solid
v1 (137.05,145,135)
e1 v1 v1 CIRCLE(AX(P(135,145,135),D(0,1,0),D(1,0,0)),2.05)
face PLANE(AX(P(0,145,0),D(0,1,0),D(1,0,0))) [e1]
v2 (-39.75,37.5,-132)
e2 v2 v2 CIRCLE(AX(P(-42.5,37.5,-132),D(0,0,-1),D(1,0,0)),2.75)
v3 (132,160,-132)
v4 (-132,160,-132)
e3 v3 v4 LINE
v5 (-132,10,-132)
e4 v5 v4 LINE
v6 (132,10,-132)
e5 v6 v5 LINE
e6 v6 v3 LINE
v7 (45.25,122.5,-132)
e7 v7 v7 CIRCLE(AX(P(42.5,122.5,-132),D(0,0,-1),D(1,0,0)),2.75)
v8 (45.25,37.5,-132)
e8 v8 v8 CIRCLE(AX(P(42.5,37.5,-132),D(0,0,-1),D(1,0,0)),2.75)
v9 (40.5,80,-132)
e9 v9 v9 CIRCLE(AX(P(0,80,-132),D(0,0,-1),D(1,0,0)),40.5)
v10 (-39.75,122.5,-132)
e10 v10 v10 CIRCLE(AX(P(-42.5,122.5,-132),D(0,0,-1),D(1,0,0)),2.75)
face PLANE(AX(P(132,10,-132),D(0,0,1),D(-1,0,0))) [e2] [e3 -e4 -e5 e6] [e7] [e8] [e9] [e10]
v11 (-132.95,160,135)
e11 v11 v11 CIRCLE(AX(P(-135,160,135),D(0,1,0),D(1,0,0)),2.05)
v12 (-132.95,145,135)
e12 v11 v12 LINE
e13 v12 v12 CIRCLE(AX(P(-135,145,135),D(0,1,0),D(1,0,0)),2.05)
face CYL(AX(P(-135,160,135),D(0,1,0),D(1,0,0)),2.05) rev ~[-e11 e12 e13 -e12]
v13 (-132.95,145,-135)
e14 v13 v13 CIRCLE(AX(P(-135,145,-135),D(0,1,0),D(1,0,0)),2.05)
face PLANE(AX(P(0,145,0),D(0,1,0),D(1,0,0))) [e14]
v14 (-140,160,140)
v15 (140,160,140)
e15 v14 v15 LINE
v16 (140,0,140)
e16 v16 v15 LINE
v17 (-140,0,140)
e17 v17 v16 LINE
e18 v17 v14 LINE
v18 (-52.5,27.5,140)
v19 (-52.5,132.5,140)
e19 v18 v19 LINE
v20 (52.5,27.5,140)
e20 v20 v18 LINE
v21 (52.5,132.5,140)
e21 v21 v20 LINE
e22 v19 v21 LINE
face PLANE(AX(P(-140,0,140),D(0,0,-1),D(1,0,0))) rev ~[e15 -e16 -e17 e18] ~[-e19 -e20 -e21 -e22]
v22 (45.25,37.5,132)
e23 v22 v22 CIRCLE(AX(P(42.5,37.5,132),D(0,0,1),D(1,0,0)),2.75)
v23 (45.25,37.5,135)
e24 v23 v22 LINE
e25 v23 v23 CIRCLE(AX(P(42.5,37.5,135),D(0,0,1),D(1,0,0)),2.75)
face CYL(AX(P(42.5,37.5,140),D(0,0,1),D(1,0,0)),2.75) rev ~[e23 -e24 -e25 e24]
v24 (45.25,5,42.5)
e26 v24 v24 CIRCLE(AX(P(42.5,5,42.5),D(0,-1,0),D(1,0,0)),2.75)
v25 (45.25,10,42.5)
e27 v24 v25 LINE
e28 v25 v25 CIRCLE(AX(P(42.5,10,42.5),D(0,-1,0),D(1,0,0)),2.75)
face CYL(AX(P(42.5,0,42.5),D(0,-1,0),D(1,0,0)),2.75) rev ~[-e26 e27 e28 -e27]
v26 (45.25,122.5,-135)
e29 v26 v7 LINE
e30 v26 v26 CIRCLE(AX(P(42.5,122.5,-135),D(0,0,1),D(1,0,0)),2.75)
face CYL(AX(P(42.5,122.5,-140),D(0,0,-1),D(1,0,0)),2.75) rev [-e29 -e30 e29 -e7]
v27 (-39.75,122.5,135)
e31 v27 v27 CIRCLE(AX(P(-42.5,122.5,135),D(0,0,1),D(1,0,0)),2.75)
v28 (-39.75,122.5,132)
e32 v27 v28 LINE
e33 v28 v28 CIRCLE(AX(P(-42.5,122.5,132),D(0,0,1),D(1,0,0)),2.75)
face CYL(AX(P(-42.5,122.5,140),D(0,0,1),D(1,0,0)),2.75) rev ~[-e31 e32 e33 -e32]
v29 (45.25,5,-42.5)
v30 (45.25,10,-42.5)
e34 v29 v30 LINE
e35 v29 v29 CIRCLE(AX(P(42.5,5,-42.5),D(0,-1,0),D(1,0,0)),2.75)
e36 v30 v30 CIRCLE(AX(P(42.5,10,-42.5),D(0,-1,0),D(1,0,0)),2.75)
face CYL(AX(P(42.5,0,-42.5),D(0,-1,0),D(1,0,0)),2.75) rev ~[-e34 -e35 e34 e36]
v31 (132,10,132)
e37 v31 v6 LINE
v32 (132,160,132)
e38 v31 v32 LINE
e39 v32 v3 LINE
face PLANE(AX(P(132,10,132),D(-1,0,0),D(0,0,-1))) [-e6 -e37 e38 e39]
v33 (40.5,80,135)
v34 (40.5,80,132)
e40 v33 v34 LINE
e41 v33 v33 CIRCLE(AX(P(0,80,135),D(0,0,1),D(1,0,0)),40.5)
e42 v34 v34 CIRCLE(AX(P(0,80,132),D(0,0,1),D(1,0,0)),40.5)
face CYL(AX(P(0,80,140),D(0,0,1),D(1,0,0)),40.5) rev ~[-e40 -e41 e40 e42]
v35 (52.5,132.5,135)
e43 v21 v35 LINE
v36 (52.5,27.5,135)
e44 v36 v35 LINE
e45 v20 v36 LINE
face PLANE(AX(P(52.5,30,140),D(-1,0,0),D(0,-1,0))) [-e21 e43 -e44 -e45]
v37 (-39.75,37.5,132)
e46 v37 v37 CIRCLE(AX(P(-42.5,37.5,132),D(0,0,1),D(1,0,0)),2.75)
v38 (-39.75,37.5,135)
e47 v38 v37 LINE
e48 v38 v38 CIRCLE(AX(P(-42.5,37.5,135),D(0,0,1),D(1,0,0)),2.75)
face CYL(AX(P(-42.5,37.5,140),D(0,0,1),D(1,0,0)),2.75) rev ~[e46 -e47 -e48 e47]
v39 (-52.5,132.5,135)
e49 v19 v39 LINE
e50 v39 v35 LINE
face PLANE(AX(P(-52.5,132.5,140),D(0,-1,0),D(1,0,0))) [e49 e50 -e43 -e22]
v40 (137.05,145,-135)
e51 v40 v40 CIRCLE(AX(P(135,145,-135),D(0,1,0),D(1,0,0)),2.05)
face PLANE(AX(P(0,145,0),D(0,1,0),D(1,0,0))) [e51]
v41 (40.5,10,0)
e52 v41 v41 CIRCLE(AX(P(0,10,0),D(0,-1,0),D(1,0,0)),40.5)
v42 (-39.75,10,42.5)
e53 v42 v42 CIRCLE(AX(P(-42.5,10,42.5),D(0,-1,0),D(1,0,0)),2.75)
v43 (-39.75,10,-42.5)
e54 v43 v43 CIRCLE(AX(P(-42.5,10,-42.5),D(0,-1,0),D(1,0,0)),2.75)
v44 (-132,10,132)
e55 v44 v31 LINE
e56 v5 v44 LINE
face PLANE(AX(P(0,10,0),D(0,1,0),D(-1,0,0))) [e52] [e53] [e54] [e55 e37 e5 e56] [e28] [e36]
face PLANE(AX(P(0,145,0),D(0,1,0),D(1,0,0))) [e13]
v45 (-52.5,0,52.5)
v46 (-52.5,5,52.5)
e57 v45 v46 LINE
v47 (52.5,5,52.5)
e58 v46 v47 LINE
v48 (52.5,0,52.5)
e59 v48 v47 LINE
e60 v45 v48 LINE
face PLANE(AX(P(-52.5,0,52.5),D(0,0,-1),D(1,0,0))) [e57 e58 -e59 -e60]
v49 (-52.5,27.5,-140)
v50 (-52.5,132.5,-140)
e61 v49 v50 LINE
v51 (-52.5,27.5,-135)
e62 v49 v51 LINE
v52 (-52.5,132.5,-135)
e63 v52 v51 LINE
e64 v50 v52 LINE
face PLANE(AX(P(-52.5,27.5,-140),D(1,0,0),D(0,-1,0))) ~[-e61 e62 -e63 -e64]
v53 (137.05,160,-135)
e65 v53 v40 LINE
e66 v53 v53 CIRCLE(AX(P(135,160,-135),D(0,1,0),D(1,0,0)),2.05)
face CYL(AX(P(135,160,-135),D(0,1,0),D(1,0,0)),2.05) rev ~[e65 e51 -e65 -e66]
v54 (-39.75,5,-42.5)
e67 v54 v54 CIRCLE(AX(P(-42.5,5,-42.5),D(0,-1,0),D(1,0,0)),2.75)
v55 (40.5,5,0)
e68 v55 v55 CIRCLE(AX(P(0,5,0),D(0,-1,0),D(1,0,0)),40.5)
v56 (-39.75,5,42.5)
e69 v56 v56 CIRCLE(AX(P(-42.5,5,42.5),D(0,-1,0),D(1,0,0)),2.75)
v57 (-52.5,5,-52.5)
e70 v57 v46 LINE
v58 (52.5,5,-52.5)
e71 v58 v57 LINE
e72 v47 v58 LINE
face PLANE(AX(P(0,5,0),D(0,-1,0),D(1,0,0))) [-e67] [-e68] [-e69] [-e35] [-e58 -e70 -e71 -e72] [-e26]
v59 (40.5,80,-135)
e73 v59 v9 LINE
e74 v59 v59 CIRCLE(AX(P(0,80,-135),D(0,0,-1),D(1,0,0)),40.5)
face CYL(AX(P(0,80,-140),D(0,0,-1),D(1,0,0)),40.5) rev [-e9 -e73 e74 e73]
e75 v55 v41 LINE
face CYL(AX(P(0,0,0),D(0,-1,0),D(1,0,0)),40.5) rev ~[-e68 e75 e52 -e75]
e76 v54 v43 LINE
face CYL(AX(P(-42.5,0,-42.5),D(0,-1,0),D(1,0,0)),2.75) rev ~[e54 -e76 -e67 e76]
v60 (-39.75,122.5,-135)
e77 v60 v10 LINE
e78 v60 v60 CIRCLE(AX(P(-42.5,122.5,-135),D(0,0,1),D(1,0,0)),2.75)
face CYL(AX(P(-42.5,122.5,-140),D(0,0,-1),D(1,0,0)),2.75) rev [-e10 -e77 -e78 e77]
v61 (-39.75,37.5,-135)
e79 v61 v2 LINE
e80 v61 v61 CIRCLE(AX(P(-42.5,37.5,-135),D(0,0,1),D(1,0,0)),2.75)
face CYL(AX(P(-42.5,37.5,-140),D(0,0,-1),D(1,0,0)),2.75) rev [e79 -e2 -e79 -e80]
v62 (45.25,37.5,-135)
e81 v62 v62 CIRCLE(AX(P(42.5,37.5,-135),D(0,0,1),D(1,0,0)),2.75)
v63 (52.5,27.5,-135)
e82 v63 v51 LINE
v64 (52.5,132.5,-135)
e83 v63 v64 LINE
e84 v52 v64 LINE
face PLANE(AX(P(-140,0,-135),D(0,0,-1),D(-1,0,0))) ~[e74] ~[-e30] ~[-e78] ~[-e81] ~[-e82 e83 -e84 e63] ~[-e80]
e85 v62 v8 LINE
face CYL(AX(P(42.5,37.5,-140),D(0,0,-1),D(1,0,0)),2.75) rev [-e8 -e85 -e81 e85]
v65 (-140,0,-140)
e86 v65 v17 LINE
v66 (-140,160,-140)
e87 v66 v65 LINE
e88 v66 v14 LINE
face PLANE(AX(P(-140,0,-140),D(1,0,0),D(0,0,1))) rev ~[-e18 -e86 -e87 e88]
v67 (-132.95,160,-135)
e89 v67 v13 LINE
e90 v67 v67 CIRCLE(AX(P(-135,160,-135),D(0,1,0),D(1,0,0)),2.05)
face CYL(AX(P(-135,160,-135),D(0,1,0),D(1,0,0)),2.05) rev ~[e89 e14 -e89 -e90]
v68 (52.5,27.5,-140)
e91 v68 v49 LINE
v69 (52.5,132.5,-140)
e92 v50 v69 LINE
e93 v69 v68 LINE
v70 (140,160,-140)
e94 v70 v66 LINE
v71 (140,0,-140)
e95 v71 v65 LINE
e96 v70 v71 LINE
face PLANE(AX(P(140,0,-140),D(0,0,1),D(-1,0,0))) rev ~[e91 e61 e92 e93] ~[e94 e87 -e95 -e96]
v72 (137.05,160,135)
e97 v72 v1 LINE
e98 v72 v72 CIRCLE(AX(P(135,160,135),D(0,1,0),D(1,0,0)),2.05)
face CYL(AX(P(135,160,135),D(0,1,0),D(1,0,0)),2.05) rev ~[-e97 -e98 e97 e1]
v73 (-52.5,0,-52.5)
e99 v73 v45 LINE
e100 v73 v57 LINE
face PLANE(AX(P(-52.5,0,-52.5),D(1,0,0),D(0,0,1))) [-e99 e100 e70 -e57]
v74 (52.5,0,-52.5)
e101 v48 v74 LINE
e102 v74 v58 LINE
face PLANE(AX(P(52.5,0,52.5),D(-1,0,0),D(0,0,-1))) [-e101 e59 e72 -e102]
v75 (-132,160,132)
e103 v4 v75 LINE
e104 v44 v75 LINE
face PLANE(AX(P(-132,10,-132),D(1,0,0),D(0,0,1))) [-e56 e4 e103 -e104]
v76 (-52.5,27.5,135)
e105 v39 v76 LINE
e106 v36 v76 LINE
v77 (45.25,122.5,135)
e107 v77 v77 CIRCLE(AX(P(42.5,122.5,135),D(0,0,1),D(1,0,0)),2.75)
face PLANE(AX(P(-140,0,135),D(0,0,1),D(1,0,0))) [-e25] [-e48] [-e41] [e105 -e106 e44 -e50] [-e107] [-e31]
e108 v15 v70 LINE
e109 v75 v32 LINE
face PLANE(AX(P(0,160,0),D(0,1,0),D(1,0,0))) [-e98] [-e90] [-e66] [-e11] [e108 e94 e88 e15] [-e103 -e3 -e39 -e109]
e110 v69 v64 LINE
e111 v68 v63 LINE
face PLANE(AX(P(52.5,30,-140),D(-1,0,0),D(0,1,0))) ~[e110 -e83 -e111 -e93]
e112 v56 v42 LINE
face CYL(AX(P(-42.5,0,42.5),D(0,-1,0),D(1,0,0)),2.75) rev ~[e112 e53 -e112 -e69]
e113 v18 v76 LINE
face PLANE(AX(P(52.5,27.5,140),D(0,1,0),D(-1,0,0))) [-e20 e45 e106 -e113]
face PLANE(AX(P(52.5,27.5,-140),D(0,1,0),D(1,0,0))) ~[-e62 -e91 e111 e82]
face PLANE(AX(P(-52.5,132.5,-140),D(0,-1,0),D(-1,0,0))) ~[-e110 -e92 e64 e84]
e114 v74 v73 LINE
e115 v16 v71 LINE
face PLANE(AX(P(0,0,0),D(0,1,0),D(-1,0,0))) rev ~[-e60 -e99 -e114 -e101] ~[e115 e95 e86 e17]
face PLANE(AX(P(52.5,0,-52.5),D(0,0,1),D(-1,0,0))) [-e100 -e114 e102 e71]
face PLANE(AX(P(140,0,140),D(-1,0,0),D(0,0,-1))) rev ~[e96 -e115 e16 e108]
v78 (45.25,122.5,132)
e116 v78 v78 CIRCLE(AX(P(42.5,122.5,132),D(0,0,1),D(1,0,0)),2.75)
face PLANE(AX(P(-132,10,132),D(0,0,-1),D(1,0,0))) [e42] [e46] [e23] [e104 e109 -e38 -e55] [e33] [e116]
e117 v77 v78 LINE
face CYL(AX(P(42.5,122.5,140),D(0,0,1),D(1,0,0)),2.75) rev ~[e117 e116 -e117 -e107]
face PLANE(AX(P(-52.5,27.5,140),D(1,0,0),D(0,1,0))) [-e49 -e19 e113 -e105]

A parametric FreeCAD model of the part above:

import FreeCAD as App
import Part
import Sketcher

V = App.Vector


def add_polygon(sketch, points):
    """Adds a closed chain of lines whose ends are joined by coincident constraints."""
    first, n = sketch.GeometryCount, len(points)
    for a, b in zip(points, points[1:] + points[:1]):
        sketch.addGeometry(Part.LineSegment(App.Vector(*a, 0), App.Vector(*b, 0)), False)
    for i in range(n):
        sketch.addConstraint(Sketcher.Constraint("Coincident", first + i, 2, first + (i + 1) % n, 1))

doc = App.newDocument("Part")
body = doc.addObject("PartDesign::Body", "Body")

# Sketch on XZ plane
sketch1 = doc.addObject("Sketcher::SketchObject", "Sketch")
body.addObject(sketch1)
sketch1.AttachmentSupport = (doc.XZ_Plane, [""])
sketch1.MapMode = "FlatFace"
add_polygon(sketch1, [(-140, -140), (-140, 140), (140, 140), (140, -140)])  # lines 0-3
sketch1.addConstraint(Sketcher.Constraint("Vertical", 0))
sketch1.addConstraint(Sketcher.Constraint("Horizontal", 1))
sketch1.addConstraint(Sketcher.Constraint("Vertical", 2))
sketch1.addConstraint(Sketcher.Constraint("Horizontal", 3))
sketch1.addConstraint(Sketcher.Constraint("Symmetric", 0, 2, 2, 2, -1, 1))
sketch1.addConstraint(Sketcher.Constraint("Equal", 3, 0))
sketch1.addConstraint(Sketcher.Constraint("DistanceX", 1, 1, 1, 2, 280.0))
pad1 = doc.addObject("PartDesign::Pad", "Pad")
body.addObject(pad1)
pad1.Profile = sketch1
pad1.Length = 10
pad1.Reversed = True

# Sketch on XZ plane
sketch2 = doc.addObject("Sketcher::SketchObject", "Sketch001")
body.addObject(sketch2)
sketch2.AttachmentSupport = (doc.XZ_Plane, [""])
sketch2.MapMode = "FlatFace"
sketch2.AttachmentOffset = App.Placement(V(0, 0, -10), App.Rotation())
add_polygon(sketch2, [(-140, -140), (-140, 140), (140, 140), (140, -140)])  # lines 0-3
add_polygon(sketch2, [(132, 132), (-132, 132), (-132, -132), (132, -132)])  # lines 4-7
sketch2.addConstraint(Sketcher.Constraint("Vertical", 0))
sketch2.addConstraint(Sketcher.Constraint("Horizontal", 1))
sketch2.addConstraint(Sketcher.Constraint("Vertical", 2))
sketch2.addConstraint(Sketcher.Constraint("Horizontal", 3))
sketch2.addConstraint(Sketcher.Constraint("Horizontal", 4))
sketch2.addConstraint(Sketcher.Constraint("Vertical", 5))
sketch2.addConstraint(Sketcher.Constraint("Horizontal", 6))
sketch2.addConstraint(Sketcher.Constraint("Vertical", 7))
sketch2.addConstraint(Sketcher.Constraint("Symmetric", 0, 2, 2, 2, -1, 1))
sketch2.addConstraint(Sketcher.Constraint("Symmetric", 4, 2, 6, 2, -1, 1))
sketch2.addConstraint(Sketcher.Constraint("Equal", 3, 0))
sketch2.addConstraint(Sketcher.Constraint("Equal", 6, 5))
sketch2.addConstraint(Sketcher.Constraint("DistanceX", 0, 2, 4, 2, 8.0))
sketch2.addConstraint(Sketcher.Constraint("DistanceX", 1, 1, 1, 2, 280.0))
pad2 = doc.addObject("PartDesign::Pad", "Pad001")
body.addObject(pad2)
pad2.Profile = sketch2
pad2.Length = 150
pad2.Reversed = True

# Sketch on XZ plane
sketch3 = doc.addObject("Sketcher::SketchObject", "Sketch002")
body.addObject(sketch3)
sketch3.AttachmentSupport = (doc.XZ_Plane, [""])
sketch3.MapMode = "FlatFace"
sketch3.AttachmentOffset = App.Placement(V(0, 0, -160), App.Rotation())
sketch3.addGeometry(Part.Circle(V(-135, -135, 0), V(0, 0, 1), 2.05), False)
sketch3.addGeometry(Part.Circle(V(135, -135, 0), V(0, 0, 1), 2.05), False)
sketch3.addGeometry(Part.Circle(V(135, 135, 0), V(0, 0, 1), 2.05), False)
sketch3.addGeometry(Part.Circle(V(-135, 135, 0), V(0, 0, 1), 2.05), False)
sketch3.addConstraint(Sketcher.Constraint("Equal", 0, 1))
sketch3.addConstraint(Sketcher.Constraint("Equal", 1, 2))
sketch3.addConstraint(Sketcher.Constraint("Equal", 2, 3))
sketch3.addConstraint(Sketcher.Constraint("Symmetric", 0, 3, 2, 3, -1, 1))
sketch3.addConstraint(Sketcher.Constraint("Symmetric", 1, 3, 3, 3, -1, 1))
sketch3.addConstraint(Sketcher.Constraint("Symmetric", 0, 3, 1, 3, -2))
sketch3.addConstraint(Sketcher.Constraint("Diameter", 0, 4.1))
sketch3.addConstraint(Sketcher.Constraint("DistanceX", 0, 3, -1, 1, 135.0))
sketch3.addConstraint(Sketcher.Constraint("DistanceY", 0, 3, -1, 1, 135.0))
pocket1 = doc.addObject("PartDesign::Pocket", "Pocket")
body.addObject(pocket1)
pocket1.Profile = sketch3
pocket1.Length = 15
pocket1.Reversed = True

# Sketch on XY plane
sketch4 = doc.addObject("Sketcher::SketchObject", "Sketch003")
body.addObject(sketch4)
sketch4.AttachmentSupport = (doc.XY_Plane, [""])
sketch4.MapMode = "FlatFace"
sketch4.AttachmentOffset = App.Placement(V(0, 0, 140), App.Rotation())
sketch4.addGeometry(Part.Circle(V(0, 80, 0), V(0, 0, 1), 40.5), False)
sketch4.addConstraint(Sketcher.Constraint("PointOnObject", 0, 3, -2))
sketch4.addConstraint(Sketcher.Constraint("Diameter", 0, 81.0))
sketch4.addConstraint(Sketcher.Constraint("DistanceY", -1, 1, 0, 3, 80.0))
pocket2 = doc.addObject("PartDesign::Pocket", "Pocket001")
body.addObject(pocket2)
pocket2.Profile = sketch4
pocket2.Length = 10

# Sketch on XY plane
sketch5 = doc.addObject("Sketcher::SketchObject", "Sketch004")
body.addObject(sketch5)
sketch5.AttachmentSupport = (doc.XY_Plane, [""])
sketch5.MapMode = "FlatFace"
sketch5.AttachmentOffset = App.Placement(V(0, 0, 140), App.Rotation())
add_polygon(sketch5, [(-52.5, 27.5), (52.5, 27.5), (52.5, 132.5), (-52.5, 132.5)])  # lines 0-3
sketch5.addGeometry(Part.Circle(V(42.5, 122.5, 0), V(0, 0, 1), 2.75), False)  # 4
sketch5.addGeometry(Part.Circle(V(-42.5, 37.5, 0), V(0, 0, 1), 2.75), False)  # 5
sketch5.addGeometry(Part.Circle(V(42.5, 37.5, 0), V(0, 0, 1), 2.75), False)  # 6
sketch5.addGeometry(Part.Circle(V(-42.5, 122.5, 0), V(0, 0, 1), 2.75), False)  # 7
sketch5.addConstraint(Sketcher.Constraint("Horizontal", 0))
sketch5.addConstraint(Sketcher.Constraint("Vertical", 1))
sketch5.addConstraint(Sketcher.Constraint("Horizontal", 2))
sketch5.addConstraint(Sketcher.Constraint("Vertical", 3))
sketch5.addConstraint(Sketcher.Constraint("Equal", 4, 5))
sketch5.addConstraint(Sketcher.Constraint("Equal", 5, 6))
sketch5.addConstraint(Sketcher.Constraint("Equal", 6, 7))
sketch5.addConstraint(Sketcher.Constraint("Symmetric", 5, 3, 6, 3, -2))
sketch5.addConstraint(Sketcher.Constraint("Symmetric", 4, 3, 7, 3, -2))
sketch5.addConstraint(Sketcher.Constraint("Vertical", 4, 3, 6, 3))
sketch5.addConstraint(Sketcher.Constraint("Equal", 2, 1))
sketch5.addConstraint(Sketcher.Constraint("Diameter", 4, 5.5))
sketch5.addConstraint(Sketcher.Constraint("DistanceX", 0, 1, 0, 2, 105.0))
sketch5.addConstraint(Sketcher.Constraint("DistanceX", 5, 3, 4, 3, 85.0))
sketch5.addConstraint(Sketcher.Constraint("DistanceY", 5, 3, 4, 3, 85.0))
sketch5.addConstraint(Sketcher.Constraint("DistanceX", 6, 3, 0, 2, 10.0))
sketch5.addConstraint(Sketcher.Constraint("DistanceY", 0, 2, 6, 3, 10.0))
sketch5.addConstraint(Sketcher.Constraint("DistanceY", -1, 1, 4, 3, 122.5))
pocket3 = doc.addObject("PartDesign::Pocket", "Pocket002")
body.addObject(pocket3)
pocket3.Profile = sketch5
pocket3.Length = 5
doc.recompute()

mirrored = doc.addObject("PartDesign::Mirrored", "Mirrored")
body.addObject(mirrored)
mirrored.Originals = [pocket2]
mirrored.MirrorPlane = (doc.XY_Plane, [""])
body.Tip = mirrored

# Sketch on XZ plane
sketch6 = doc.addObject("Sketcher::SketchObject", "Sketch005")
body.addObject(sketch6)
sketch6.AttachmentSupport = (doc.XZ_Plane, [""])
sketch6.MapMode = "FlatFace"
sketch6.addGeometry(Part.Circle(V(0, 0, 0), V(0, 0, 1), 40.5), False)
sketch6.addConstraint(Sketcher.Constraint("Coincident", 0, 3, -1, 1))
sketch6.addConstraint(Sketcher.Constraint("Diameter", 0, 81.0))
pocket4 = doc.addObject("PartDesign::Pocket", "Pocket003")
body.addObject(pocket4)
pocket4.Profile = sketch6
pocket4.Length = 10

# Sketch on XZ plane
sketch7 = doc.addObject("Sketcher::SketchObject", "Sketch006")
body.addObject(sketch7)
sketch7.AttachmentSupport = (doc.XZ_Plane, [""])
sketch7.MapMode = "FlatFace"
add_polygon(sketch7, [(52.5, 52.5), (-52.5, 52.5), (-52.5, -52.5), (52.5, -52.5)])  # lines 0-3
sketch7.addGeometry(Part.Circle(V(-42.5, -42.5, 0), V(0, 0, 1), 2.75), False)  # 4
sketch7.addGeometry(Part.Circle(V(42.5, -42.5, 0), V(0, 0, 1), 2.75), False)  # 5
sketch7.addGeometry(Part.Circle(V(-42.5, 42.5, 0), V(0, 0, 1), 2.75), False)  # 6
sketch7.addGeometry(Part.Circle(V(42.5, 42.5, 0), V(0, 0, 1), 2.75), False)  # 7
sketch7.addConstraint(Sketcher.Constraint("Horizontal", 0))
sketch7.addConstraint(Sketcher.Constraint("Vertical", 1))
sketch7.addConstraint(Sketcher.Constraint("Horizontal", 2))
sketch7.addConstraint(Sketcher.Constraint("Vertical", 3))
sketch7.addConstraint(Sketcher.Constraint("Equal", 4, 5))
sketch7.addConstraint(Sketcher.Constraint("Equal", 5, 6))
sketch7.addConstraint(Sketcher.Constraint("Equal", 6, 7))
sketch7.addConstraint(Sketcher.Constraint("Symmetric", 5, 3, 6, 3, -1, 1))
sketch7.addConstraint(Sketcher.Constraint("Symmetric", 4, 3, 7, 3, -1, 1))
sketch7.addConstraint(Sketcher.Constraint("Symmetric", 0, 2, 2, 2, -1, 1))
sketch7.addConstraint(Sketcher.Constraint("Symmetric", 4, 3, 5, 3, -2))
sketch7.addConstraint(Sketcher.Constraint("Equal", 2, 1))
sketch7.addConstraint(Sketcher.Constraint("Diameter", 4, 5.5))
sketch7.addConstraint(Sketcher.Constraint("DistanceX", 0, 2, 0, 1, 105.0))
sketch7.addConstraint(Sketcher.Constraint("DistanceX", 0, 2, 6, 3, 10.0))
sketch7.addConstraint(Sketcher.Constraint("DistanceY", 6, 3, 0, 2, 10.0))
pocket5 = doc.addObject("PartDesign::Pocket", "Pocket004")
body.addObject(pocket5)
pocket5.Profile = sketch7
pocket5.Length = 5

# Sketch on XZ plane
sketch8 = doc.addObject("Sketcher::SketchObject", "Sketch007")
body.addObject(sketch8)
sketch8.AttachmentSupport = (doc.XZ_Plane, [""])
sketch8.MapMode = "FlatFace"
sketch8.addGeometry(Part.Circle(V(42.5, 42.5, 0), V(0, 0, 1), 2.75), False)
sketch8.addGeometry(Part.Circle(V(42.5, -42.5, 0), V(0, 0, 1), 2.75), False)
sketch8.addGeometry(Part.Circle(V(-42.5, -42.5, 0), V(0, 0, 1), 2.75), False)
sketch8.addGeometry(Part.Circle(V(-42.5, 42.5, 0), V(0, 0, 1), 2.75), False)
sketch8.addConstraint(Sketcher.Constraint("Equal", 0, 1))
sketch8.addConstraint(Sketcher.Constraint("Equal", 1, 2))
sketch8.addConstraint(Sketcher.Constraint("Equal", 2, 3))
sketch8.addConstraint(Sketcher.Constraint("Symmetric", 0, 3, 2, 3, -1, 1))
sketch8.addConstraint(Sketcher.Constraint("Symmetric", 1, 3, 3, 3, -1, 1))
sketch8.addConstraint(Sketcher.Constraint("Symmetric", 1, 3, 2, 3, -2))
sketch8.addConstraint(Sketcher.Constraint("Diameter", 0, 5.5))
sketch8.addConstraint(Sketcher.Constraint("DistanceY", 1, 3, 0, 3, 85.0))
sketch8.addConstraint(Sketcher.Constraint("DistanceX", 2, 3, 1, 3, 85.0))
pocket6 = doc.addObject("PartDesign::Pocket", "Pocket005")
body.addObject(pocket6)
pocket6.Profile = sketch8
pocket6.Length = 10

# Sketch on XY plane
sketch9 = doc.addObject("Sketcher::SketchObject", "Sketch008")
body.addObject(sketch9)
sketch9.AttachmentSupport = (doc.XY_Plane, [""])
sketch9.MapMode = "FlatFace"
sketch9.AttachmentOffset = App.Placement(V(0, 0, 140), App.Rotation())
sketch9.addGeometry(Part.Circle(V(-42.5, 122.5, 0), V(0, 0, 1), 2.75), False)
sketch9.addGeometry(Part.Circle(V(42.5, 122.5, 0), V(0, 0, 1), 2.75), False)
sketch9.addGeometry(Part.Circle(V(42.5, 37.5, 0), V(0, 0, 1), 2.75), False)
sketch9.addGeometry(Part.Circle(V(-42.5, 37.5, 0), V(0, 0, 1), 2.75), False)
sketch9.addConstraint(Sketcher.Constraint("Equal", 0, 1))
sketch9.addConstraint(Sketcher.Constraint("Equal", 1, 2))
sketch9.addConstraint(Sketcher.Constraint("Equal", 2, 3))
sketch9.addConstraint(Sketcher.Constraint("Symmetric", 0, 3, 1, 3, -2))
sketch9.addConstraint(Sketcher.Constraint("Symmetric", 2, 3, 3, 3, -2))
sketch9.addConstraint(Sketcher.Constraint("Vertical", 1, 3, 2, 3))
sketch9.addConstraint(Sketcher.Constraint("Diameter", 0, 5.5))
sketch9.addConstraint(Sketcher.Constraint("DistanceX", 0, 3, 1, 3, 85.0))
sketch9.addConstraint(Sketcher.Constraint("DistanceY", 2, 3, 1, 3, 85.0))
sketch9.addConstraint(Sketcher.Constraint("DistanceY", -1, 1, 0, 3, 122.5))
pocket7 = doc.addObject("PartDesign::Pocket", "Pocket006")
body.addObject(pocket7)
pocket7.Profile = sketch9
pocket7.Length = 10
doc.recompute()

mirrored2 = doc.addObject("PartDesign::Mirrored", "Mirrored001")
body.addObject(mirrored2)
mirrored2.Originals = [pocket3, pocket7]
mirrored2.MirrorPlane = (doc.XY_Plane, [""])
body.Tip = mirrored2

doc.recompute()
